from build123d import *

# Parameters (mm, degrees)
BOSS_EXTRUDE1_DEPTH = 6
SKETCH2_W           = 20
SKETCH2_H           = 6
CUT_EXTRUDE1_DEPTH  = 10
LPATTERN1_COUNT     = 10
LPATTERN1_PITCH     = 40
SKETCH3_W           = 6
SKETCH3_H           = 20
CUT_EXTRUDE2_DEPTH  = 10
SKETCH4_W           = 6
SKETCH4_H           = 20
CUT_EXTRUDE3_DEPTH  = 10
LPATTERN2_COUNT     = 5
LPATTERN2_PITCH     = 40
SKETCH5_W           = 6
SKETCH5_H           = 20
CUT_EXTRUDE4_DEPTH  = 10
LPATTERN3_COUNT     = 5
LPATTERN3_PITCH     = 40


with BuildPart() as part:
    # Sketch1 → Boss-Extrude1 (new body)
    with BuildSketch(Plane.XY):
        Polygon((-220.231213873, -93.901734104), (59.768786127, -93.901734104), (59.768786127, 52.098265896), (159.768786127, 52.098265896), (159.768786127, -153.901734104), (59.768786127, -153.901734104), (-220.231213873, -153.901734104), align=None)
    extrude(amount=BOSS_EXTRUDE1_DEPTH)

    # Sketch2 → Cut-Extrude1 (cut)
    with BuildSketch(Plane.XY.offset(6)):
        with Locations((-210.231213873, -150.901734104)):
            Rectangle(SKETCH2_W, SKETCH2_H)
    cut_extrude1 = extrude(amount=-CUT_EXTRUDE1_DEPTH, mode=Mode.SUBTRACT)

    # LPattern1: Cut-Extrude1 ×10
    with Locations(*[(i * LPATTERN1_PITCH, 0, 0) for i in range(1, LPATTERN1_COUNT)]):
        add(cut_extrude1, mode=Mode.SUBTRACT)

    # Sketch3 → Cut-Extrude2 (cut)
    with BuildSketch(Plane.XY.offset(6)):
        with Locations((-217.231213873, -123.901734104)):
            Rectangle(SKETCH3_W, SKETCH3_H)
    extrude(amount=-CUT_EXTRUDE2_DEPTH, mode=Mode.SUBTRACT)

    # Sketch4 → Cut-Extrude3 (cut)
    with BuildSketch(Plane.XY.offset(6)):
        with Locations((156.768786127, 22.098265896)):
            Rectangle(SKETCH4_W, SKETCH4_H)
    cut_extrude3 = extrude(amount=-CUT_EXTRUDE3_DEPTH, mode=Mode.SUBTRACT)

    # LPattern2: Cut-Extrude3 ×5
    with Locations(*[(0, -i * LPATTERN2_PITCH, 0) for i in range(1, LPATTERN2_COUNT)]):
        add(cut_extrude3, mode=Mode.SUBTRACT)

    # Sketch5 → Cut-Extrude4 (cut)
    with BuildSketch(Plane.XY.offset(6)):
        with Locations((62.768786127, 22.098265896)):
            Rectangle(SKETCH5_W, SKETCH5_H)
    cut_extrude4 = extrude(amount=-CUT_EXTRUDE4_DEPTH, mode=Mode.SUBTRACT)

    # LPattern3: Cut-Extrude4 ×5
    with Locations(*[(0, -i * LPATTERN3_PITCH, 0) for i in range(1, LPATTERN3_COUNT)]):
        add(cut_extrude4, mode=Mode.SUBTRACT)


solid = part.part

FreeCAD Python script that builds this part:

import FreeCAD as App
import Part
import Sketcher
Q = App.Units.Quantity

doc = App.newDocument("Part")
params = doc.addObject("Spreadsheet::Sheet", "Params")
for row, (alias, value) in enumerate([
    ("sketch1_width", "280 mm"),
    ("sketch1_width2", "380 mm"),
    ("sketch1_height", "60 mm"),
    ("sketch1_height2", "206 mm"),
    ("pad1_length", "6 mm"),
    ("sketch2_width", "20 mm"),
    ("sketch2_height", "6 mm"),
    ("pocket1_length", "10 mm"),
    ("linearpattern_pitch", "40 mm"),
    ("sketch3_width", "6 mm"),
    ("sketch3_height", "20 mm"),
    ("pocket2_length", "10 mm"),
    ("sketch4_width", "6 mm"),
    ("sketch4_height", "20 mm"),
    ("pocket3_length", "10 mm"),
    ("linearpattern2_pitch", "40 mm"),
    ("sketch5_width", "6 mm"),
    ("sketch5_height", "20 mm"),
    ("pocket4_length", "10 mm"),
    ("linearpattern3_pitch", "40 mm"),
], start=1):
    params.set(f"A{row}", alias)
    params.set(f"B{row}", "=" + value)
    params.setAlias(f"B{row}", alias)

body = doc.addObject("PartDesign::Body", "Body")

sketch1 = doc.addObject("Sketcher::SketchObject", "Sketch")
body.addObject(sketch1)
sketch1.AttachmentSupport = (doc.XY_Plane, [""])
sketch1.MapMode = "FlatFace"
sketch1.addGeometry([
    Part.LineSegment(App.Vector(59.768786, -93.901734, 0), App.Vector(-220.231214, -93.901734, 0)),
    Part.LineSegment(App.Vector(-220.231214, -93.901734, 0), App.Vector(-220.231214, -153.901734, 0)),
    Part.LineSegment(App.Vector(-220.231214, -153.901734, 0), App.Vector(159.768786, -153.901734, 0)),
    Part.LineSegment(App.Vector(159.768786, -153.901734, 0), App.Vector(159.768786, 52.098266, 0)),
    Part.LineSegment(App.Vector(159.768786, 52.098266, 0), App.Vector(59.768786, 52.098266, 0)),
    Part.LineSegment(App.Vector(59.768786, 52.098266, 0), App.Vector(59.768786, -93.901734, 0)),
], False)
sketch1.addConstraint([
    Sketcher.Constraint("Coincident", 0, 2, 1, 1),
    Sketcher.Constraint("Coincident", 1, 2, 2, 1),
    Sketcher.Constraint("Coincident", 2, 2, 3, 1),
    Sketcher.Constraint("Coincident", 3, 2, 4, 1),
    Sketcher.Constraint("Coincident", 4, 2, 5, 1),
    Sketcher.Constraint("Coincident", 5, 2, 0, 1),
    Sketcher.Constraint("Horizontal", 0),
    Sketcher.Constraint("Vertical", 1),
    Sketcher.Constraint("Horizontal", 2),
    Sketcher.Constraint("Vertical", 3),
    Sketcher.Constraint("Horizontal", 4),
    Sketcher.Constraint("Vertical", 5),
    Sketcher.Constraint("DistanceX", 0, 2, 0, 1, Q("280 mm")),
    Sketcher.Constraint("DistanceX", 2, 1, 2, 2, Q("380 mm")),
    Sketcher.Constraint("DistanceY", 1, 2, 1, 1, Q("60 mm")),
    Sketcher.Constraint("DistanceY", 3, 1, 3, 2, Q("206 mm")),
    Sketcher.Constraint("DistanceX", 0, 2, -1, 1, Q("220.231214 mm")),
    Sketcher.Constraint("DistanceY", 0, 2, -1, 1, Q("93.901734 mm")),
])
sketch1.setExpression("Constraints[12]", "Params.sketch1_width")
sketch1.setExpression("Constraints[13]", "Params.sketch1_width2")
sketch1.setExpression("Constraints[14]", "Params.sketch1_height")
sketch1.setExpression("Constraints[15]", "Params.sketch1_height2")
pad1 = doc.addObject("PartDesign::Pad", "Pad")
body.addObject(pad1)
pad1.Profile = sketch1
pad1.setExpression("Length", "Params.pad1_length")

sketch2 = doc.addObject("Sketcher::SketchObject", "Sketch001")
body.addObject(sketch2)
sketch2.AttachmentSupport = (doc.XY_Plane, [""])
sketch2.MapMode = "FlatFace"
sketch2.AttachmentOffset = App.Placement(App.Vector(0, 0, 6), App.Rotation())
sketch2.addGeometry([
    Part.LineSegment(App.Vector(-220.231214, -147.901734, 0), App.Vector(-220.231214, -153.901734, 0)),
    Part.LineSegment(App.Vector(-220.231214, -153.901734, 0), App.Vector(-200.231214, -153.901734, 0)),
    Part.LineSegment(App.Vector(-200.231214, -153.901734, 0), App.Vector(-200.231214, -147.901734, 0)),
    Part.LineSegment(App.Vector(-200.231214, -147.901734, 0), App.Vector(-220.231214, -147.901734, 0)),
], False)
sketch2.addConstraint([
    Sketcher.Constraint("Coincident", 0, 2, 1, 1),
    Sketcher.Constraint("Coincident", 1, 2, 2, 1),
    Sketcher.Constraint("Coincident", 2, 2, 3, 1),
    Sketcher.Constraint("Coincident", 3, 2, 0, 1),
    Sketcher.Constraint("Vertical", 0),
    Sketcher.Constraint("Horizontal", 1),
    Sketcher.Constraint("Vertical", 2),
    Sketcher.Constraint("Horizontal", 3),
    Sketcher.Constraint("DistanceX", 1, 1, 1, 2, Q("20 mm")),
    Sketcher.Constraint("DistanceY", 0, 2, 0, 1, Q("6 mm")),
    Sketcher.Constraint("DistanceX", 0, 2, -1, 1, Q("220.231214 mm")),
    Sketcher.Constraint("DistanceY", 0, 2, -1, 1, Q("153.901734 mm")),
])
sketch2.setExpression("Constraints[8]", "Params.sketch2_width")
sketch2.setExpression("Constraints[9]", "Params.sketch2_height")
pocket1 = doc.addObject("PartDesign::Pocket", "Pocket")
body.addObject(pocket1)
pocket1.Profile = sketch2
pocket1.setExpression("Length", "Params.pocket1_length")
doc.recompute()

linearpattern = doc.addObject("PartDesign::LinearPattern", "LinearPattern")
body.addObject(linearpattern)
linearpattern.Originals = [pocket1]
linearpattern.Direction = (doc.X_Axis, [""])
linearpattern.Mode = "offset"
linearpattern.setExpression("Offset", "Params.linearpattern_pitch")
linearpattern.Occurrences = 10
body.Tip = linearpattern

sketch3 = doc.addObject("Sketcher::SketchObject", "Sketch002")
body.addObject(sketch3)
sketch3.AttachmentSupport = (doc.XY_Plane, [""])
sketch3.MapMode = "FlatFace"
sketch3.AttachmentOffset = App.Placement(App.Vector(0, 0, 6), App.Rotation())
sketch3.addGeometry([
    Part.LineSegment(App.Vector(-220.231214, -113.901734, 0), App.Vector(-220.231214, -133.901734, 0)),
    Part.LineSegment(App.Vector(-220.231214, -133.901734, 0), App.Vector(-214.231214, -133.901734, 0)),
    Part.LineSegment(App.Vector(-214.231214, -133.901734, 0), App.Vector(-214.231214, -113.901734, 0)),
    Part.LineSegment(App.Vector(-214.231214, -113.901734, 0), App.Vector(-220.231214, -113.901734, 0)),
], False)
sketch3.addConstraint([
    Sketcher.Constraint("Coincident", 0, 2, 1, 1),
    Sketcher.Constraint("Coincident", 1, 2, 2, 1),
    Sketcher.Constraint("Coincident", 2, 2, 3, 1),
    Sketcher.Constraint("Coincident", 3, 2, 0, 1),
    Sketcher.Constraint("Vertical", 0),
    Sketcher.Constraint("Horizontal", 1),
    Sketcher.Constraint("Vertical", 2),
    Sketcher.Constraint("Horizontal", 3),
    Sketcher.Constraint("DistanceX", 1, 1, 1, 2, Q("6 mm")),
    Sketcher.Constraint("DistanceY", 0, 2, 0, 1, Q("20 mm")),
    Sketcher.Constraint("DistanceX", 0, 2, -1, 1, Q("220.231214 mm")),
    Sketcher.Constraint("DistanceY", 0, 2, -1, 1, Q("133.901734 mm")),
])
sketch3.setExpression("Constraints[8]", "Params.sketch3_width")
sketch3.setExpression("Constraints[9]", "Params.sketch3_height")
pocket2 = doc.addObject("PartDesign::Pocket", "Pocket001")
body.addObject(pocket2)
pocket2.Profile = sketch3
pocket2.setExpression("Length", "Params.pocket2_length")

sketch4 = doc.addObject("Sketcher::SketchObject", "Sketch003")
body.addObject(sketch4)
sketch4.AttachmentSupport = (doc.XY_Plane, [""])
sketch4.MapMode = "FlatFace"
sketch4.AttachmentOffset = App.Placement(App.Vector(0, 0, 6), App.Rotation())
sketch4.addGeometry([
    Part.LineSegment(App.Vector(153.768786, 32.098266, 0), App.Vector(153.768786, 12.098266, 0)),
    Part.LineSegment(App.Vector(153.768786, 12.098266, 0), App.Vector(159.768786, 12.098266, 0)),
    Part.LineSegment(App.Vector(159.768786, 12.098266, 0), App.Vector(159.768786, 32.098266, 0)),
    Part.LineSegment(App.Vector(159.768786, 32.098266, 0), App.Vector(153.768786, 32.098266, 0)),
], False)
sketch4.addConstraint([
    Sketcher.Constraint("Coincident", 0, 2, 1, 1),
    Sketcher.Constraint("Coincident", 1, 2, 2, 1),
    Sketcher.Constraint("Coincident", 2, 2, 3, 1),
    Sketcher.Constraint("Coincident", 3, 2, 0, 1),
    Sketcher.Constraint("Vertical", 0),
    Sketcher.Constraint("Horizontal", 1),
    Sketcher.Constraint("Vertical", 2),
    Sketcher.Constraint("Horizontal", 3),
    Sketcher.Constraint("DistanceX", 1, 1, 1, 2, Q("6 mm")),
    Sketcher.Constraint("DistanceY", 0, 2, 0, 1, Q("20 mm")),
    Sketcher.Constraint("DistanceX", -1, 1, 0, 2, Q("153.768786 mm")),
    Sketcher.Constraint("DistanceY", -1, 1, 0, 2, Q("12.098266 mm")),
])
sketch4.setExpression("Constraints[8]", "Params.sketch4_width")
sketch4.setExpression("Constraints[9]", "Params.sketch4_height")
pocket3 = doc.addObject("PartDesign::Pocket", "Pocket002")
body.addObject(pocket3)
pocket3.Profile = sketch4
pocket3.setExpression("Length", "Params.pocket3_length")
doc.recompute()

linearpattern2 = doc.addObject("PartDesign::LinearPattern", "LinearPattern001")
body.addObject(linearpattern2)
linearpattern2.Originals = [pocket3]
linearpattern2.Direction = (doc.Y_Axis, [""])
linearpattern2.Mode = "offset"
linearpattern2.setExpression("Offset", "Params.linearpattern2_pitch")
linearpattern2.Occurrences = 5
linearpattern2.Reversed = True
body.Tip = linearpattern2

sketch5 = doc.addObject("Sketcher::SketchObject", "Sketch004")
body.addObject(sketch5)
sketch5.AttachmentSupport = (doc.XY_Plane, [""])
sketch5.MapMode = "FlatFace"
sketch5.AttachmentOffset = App.Placement(App.Vector(0, 0, 6), App.Rotation())
sketch5.addGeometry([
    Part.LineSegment(App.Vector(59.768786, 32.098266, 0), App.Vector(59.768786, 12.098266, 0)),
    Part.LineSegment(App.Vector(59.768786, 12.098266, 0), App.Vector(65.768786, 12.098266, 0)),
    Part.LineSegment(App.Vector(65.768786, 12.098266, 0), App.Vector(65.768786, 32.098266, 0)),
    Part.LineSegment(App.Vector(65.768786, 32.098266, 0), App.Vector(59.768786, 32.098266, 0)),
], False)
sketch5.addConstraint([
    Sketcher.Constraint("Coincident", 0, 2, 1, 1),
    Sketcher.Constraint("Coincident", 1, 2, 2, 1),
    Sketcher.Constraint("Coincident", 2, 2, 3, 1),
    Sketcher.Constraint("Coincident", 3, 2, 0, 1),
    Sketcher.Constraint("Vertical", 0),
    Sketcher.Constraint("Horizontal", 1),
    Sketcher.Constraint("Vertical", 2),
    Sketcher.Constraint("Horizontal", 3),
    Sketcher.Constraint("DistanceX", 1, 1, 1, 2, Q("6 mm")),
    Sketcher.Constraint("DistanceY", 0, 2, 0, 1, Q("20 mm")),
    Sketcher.Constraint("DistanceX", -1, 1, 0, 2, Q("59.768786 mm")),
    Sketcher.Constraint("DistanceY", -1, 1, 0, 2, Q("12.098266 mm")),
])
sketch5.setExpression("Constraints[8]", "Params.sketch5_width")
sketch5.setExpression("Constraints[9]", "Params.sketch5_height")
pocket4 = doc.addObject("PartDesign::Pocket", "Pocket003")
body.addObject(pocket4)
pocket4.Profile = sketch5
pocket4.setExpression("Length", "Params.pocket4_length")
doc.recompute()

linearpattern3 = doc.addObject("PartDesign::LinearPattern", "LinearPattern002")
body.addObject(linearpattern3)
linearpattern3.Originals = [pocket4]
linearpattern3.Direction = (doc.Y_Axis, [""])
linearpattern3.Mode = "offset"
linearpattern3.setExpression("Offset", "Params.linearpattern3_pitch")
linearpattern3.Occurrences = 5
linearpattern3.Reversed = True
body.Tip = linearpattern3

doc.recompute()
